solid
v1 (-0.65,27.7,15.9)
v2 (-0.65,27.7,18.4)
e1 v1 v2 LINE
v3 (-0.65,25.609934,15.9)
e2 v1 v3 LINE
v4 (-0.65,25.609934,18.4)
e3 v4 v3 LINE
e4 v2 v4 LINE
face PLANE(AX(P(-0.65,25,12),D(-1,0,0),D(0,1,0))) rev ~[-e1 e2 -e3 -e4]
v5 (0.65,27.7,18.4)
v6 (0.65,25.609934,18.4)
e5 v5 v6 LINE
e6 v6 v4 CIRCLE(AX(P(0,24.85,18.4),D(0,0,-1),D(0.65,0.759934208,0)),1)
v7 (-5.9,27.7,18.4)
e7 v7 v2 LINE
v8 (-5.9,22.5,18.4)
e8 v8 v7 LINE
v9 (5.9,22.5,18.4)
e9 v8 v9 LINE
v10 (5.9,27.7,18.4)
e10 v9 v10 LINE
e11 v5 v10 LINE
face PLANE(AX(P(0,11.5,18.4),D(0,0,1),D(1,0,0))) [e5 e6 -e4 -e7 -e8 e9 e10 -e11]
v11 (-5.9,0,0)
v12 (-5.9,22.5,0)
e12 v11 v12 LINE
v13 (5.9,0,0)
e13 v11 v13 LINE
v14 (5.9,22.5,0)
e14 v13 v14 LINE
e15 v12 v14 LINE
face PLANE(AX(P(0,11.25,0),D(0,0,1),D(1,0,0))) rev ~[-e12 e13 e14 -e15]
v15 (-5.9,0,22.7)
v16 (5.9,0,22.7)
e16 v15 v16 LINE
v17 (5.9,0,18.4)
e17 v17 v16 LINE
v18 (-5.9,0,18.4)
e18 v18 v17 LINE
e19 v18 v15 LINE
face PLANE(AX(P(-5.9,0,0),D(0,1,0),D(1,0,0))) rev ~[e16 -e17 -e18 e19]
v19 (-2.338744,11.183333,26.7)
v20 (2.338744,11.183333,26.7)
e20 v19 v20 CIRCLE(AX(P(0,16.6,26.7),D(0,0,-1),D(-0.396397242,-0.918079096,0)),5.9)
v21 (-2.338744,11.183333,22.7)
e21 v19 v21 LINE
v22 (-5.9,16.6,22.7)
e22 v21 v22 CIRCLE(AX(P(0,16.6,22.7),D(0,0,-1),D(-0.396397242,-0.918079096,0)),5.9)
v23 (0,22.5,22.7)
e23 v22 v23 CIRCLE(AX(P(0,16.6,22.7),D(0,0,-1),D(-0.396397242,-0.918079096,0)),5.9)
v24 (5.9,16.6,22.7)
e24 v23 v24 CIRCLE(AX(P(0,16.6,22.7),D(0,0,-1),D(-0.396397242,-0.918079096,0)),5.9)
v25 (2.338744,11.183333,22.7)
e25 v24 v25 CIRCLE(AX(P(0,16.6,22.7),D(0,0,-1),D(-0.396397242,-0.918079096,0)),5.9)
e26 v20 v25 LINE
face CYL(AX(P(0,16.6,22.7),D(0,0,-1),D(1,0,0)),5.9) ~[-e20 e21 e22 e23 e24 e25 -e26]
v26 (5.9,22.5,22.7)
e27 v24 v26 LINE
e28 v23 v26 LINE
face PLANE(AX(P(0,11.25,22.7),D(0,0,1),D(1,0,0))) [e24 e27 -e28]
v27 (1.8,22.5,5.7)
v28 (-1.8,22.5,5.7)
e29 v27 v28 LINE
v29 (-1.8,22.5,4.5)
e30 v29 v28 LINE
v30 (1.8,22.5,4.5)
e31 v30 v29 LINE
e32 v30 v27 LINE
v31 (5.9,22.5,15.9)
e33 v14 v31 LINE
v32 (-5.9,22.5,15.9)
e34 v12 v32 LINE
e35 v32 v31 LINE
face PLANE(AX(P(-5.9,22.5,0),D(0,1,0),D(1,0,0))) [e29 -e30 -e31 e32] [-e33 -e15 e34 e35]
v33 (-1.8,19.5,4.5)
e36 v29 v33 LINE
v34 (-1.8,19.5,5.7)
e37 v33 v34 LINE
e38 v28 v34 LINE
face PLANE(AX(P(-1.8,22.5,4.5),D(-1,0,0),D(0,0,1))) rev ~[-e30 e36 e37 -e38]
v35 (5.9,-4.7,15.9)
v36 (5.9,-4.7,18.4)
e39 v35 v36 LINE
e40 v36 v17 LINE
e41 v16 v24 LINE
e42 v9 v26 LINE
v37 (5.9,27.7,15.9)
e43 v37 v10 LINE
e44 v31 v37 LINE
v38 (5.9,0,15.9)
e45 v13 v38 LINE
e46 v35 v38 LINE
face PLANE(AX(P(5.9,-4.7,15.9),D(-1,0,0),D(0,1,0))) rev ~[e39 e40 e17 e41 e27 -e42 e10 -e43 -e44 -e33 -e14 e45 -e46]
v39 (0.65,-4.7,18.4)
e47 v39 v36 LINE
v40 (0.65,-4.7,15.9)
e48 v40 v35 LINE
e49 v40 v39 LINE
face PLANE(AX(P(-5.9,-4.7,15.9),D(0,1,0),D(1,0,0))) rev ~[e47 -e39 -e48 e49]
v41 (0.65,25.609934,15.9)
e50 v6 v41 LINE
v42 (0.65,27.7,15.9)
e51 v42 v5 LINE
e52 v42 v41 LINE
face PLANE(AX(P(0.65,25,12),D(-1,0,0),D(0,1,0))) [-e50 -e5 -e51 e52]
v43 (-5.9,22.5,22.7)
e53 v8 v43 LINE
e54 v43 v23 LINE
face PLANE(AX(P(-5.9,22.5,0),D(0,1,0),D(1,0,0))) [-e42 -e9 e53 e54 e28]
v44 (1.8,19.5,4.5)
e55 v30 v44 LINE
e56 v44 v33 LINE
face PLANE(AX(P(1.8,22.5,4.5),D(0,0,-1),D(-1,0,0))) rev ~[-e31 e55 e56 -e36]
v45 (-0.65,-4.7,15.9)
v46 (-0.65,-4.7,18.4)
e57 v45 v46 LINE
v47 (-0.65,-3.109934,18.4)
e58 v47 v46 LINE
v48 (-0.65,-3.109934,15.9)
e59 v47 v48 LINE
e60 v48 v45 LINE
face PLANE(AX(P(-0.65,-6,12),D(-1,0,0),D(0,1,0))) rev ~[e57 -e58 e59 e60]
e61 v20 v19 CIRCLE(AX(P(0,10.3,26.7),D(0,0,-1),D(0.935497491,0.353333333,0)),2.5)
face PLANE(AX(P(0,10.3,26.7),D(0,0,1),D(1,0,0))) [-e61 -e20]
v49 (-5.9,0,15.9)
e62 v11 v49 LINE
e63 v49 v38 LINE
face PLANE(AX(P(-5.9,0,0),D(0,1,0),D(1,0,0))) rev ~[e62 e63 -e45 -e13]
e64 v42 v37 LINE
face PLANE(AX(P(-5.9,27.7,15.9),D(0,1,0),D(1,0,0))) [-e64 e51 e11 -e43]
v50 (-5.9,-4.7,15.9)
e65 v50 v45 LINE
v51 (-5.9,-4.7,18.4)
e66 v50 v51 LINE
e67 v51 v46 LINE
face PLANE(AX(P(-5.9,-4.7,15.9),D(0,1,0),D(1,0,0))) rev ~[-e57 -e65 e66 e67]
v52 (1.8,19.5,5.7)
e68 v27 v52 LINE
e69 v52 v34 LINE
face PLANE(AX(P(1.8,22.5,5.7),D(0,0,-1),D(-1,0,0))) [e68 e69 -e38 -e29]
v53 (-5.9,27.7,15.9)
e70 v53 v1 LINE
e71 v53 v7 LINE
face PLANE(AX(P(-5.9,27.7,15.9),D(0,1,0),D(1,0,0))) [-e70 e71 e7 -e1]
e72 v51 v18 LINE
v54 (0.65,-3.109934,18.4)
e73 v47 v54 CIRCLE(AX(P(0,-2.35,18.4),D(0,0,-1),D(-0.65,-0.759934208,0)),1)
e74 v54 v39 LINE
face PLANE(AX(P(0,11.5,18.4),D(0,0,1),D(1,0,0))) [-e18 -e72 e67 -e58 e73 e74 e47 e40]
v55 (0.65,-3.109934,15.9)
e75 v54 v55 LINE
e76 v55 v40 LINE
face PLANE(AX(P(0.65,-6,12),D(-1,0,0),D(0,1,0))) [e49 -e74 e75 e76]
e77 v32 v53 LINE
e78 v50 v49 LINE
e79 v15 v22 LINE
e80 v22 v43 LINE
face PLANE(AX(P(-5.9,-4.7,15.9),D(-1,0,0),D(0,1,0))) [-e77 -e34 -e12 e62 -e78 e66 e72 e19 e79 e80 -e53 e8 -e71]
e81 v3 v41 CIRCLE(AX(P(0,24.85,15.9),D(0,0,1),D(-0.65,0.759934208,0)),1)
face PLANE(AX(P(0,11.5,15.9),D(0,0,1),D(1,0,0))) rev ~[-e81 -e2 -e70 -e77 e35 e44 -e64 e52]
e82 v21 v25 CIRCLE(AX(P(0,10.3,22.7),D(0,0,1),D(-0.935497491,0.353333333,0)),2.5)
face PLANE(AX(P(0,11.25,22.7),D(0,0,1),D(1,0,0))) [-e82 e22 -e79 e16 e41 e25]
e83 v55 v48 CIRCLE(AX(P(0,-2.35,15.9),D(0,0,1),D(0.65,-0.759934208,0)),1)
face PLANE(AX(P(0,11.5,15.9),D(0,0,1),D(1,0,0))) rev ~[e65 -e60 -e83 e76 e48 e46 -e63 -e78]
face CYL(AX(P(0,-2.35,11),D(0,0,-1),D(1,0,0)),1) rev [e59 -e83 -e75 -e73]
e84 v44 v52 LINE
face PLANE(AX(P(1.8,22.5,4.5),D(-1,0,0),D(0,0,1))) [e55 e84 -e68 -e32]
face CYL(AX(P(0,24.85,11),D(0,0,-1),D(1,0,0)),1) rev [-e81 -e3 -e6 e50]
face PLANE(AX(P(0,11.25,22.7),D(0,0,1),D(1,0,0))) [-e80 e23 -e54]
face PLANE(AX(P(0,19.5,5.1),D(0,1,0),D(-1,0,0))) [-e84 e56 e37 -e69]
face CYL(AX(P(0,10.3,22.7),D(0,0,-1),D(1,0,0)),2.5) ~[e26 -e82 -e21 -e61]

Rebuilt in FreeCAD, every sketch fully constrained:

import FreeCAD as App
import Part
import Sketcher
from FreeCAD import Vector
Q = App.Units.Quantity

doc = App.newDocument("Part")
body = doc.addObject("PartDesign::Body", "Body")

sketch1 = doc.addObject("Sketcher::SketchObject", "Sketch")
body.addObject(sketch1)
sketch1.AttachmentSupport = (doc.XY_Plane, [""])
sketch1.MapMode = "FlatFace"
sketch1.AttachmentOffset = App.Placement(Vector(0, 0, 12), App.Rotation())
sketch1.addGeometry(Part.LineSegment(Vector(5.2, 28.3, 0), Vector(5.2, 25, 0)), False)
sketch1.addGeometry(Part.LineSegment(Vector(5.2, 25, 0), Vector(6.5, 25, 0)), False)
sketch1.addGeometry(Part.LineSegment(Vector(6.5, 25, 0), Vector(6.5, 28.3, 0)), False)
sketch1.addGeometry(Part.LineSegment(Vector(6.5, 28.3, 0), Vector(5.2, 28.3, 0)), False)
sketch1.addConstraint(Sketcher.Constraint("Coincident", 0, 2, 1, 1))
sketch1.addConstraint(Sketcher.Constraint("Coincident", 1, 2, 2, 1))
sketch1.addConstraint(Sketcher.Constraint("Coincident", 2, 2, 3, 1))
sketch1.addConstraint(Sketcher.Constraint("Coincident", 3, 2, 0, 1))
sketch1.addConstraint(Sketcher.Constraint("Vertical", 0))
sketch1.addConstraint(Sketcher.Constraint("Horizontal", 1))
sketch1.addConstraint(Sketcher.Constraint("Vertical", 2))
sketch1.addConstraint(Sketcher.Constraint("Horizontal", 3))
sketch1.addConstraint(Sketcher.Constraint("DistanceX", 1, 1, 1, 2, Q("1.3 mm")))
sketch1.addConstraint(Sketcher.Constraint("DistanceY", 0, 2, 0, 1, Q("3.3 mm")))
sketch1.addConstraint(Sketcher.Constraint("DistanceY", -1, 1, 0, 2, Q("25 mm")))
sketch1.addConstraint(Sketcher.Constraint("DistanceX", -1, 1, 0, 2, Q("5.25 mm")))
pad1 = doc.addObject("PartDesign::Pad", "Pad")
body.addObject(pad1)
pad1.Profile = sketch1
pad1.Length = 10
body2 = doc.addObject("PartDesign::Body", "Body001")
body2.AllowCompound = True

sketch2 = doc.addObject("Sketcher::SketchObject", "Sketch001")
body2.addObject(sketch2)
sketch2.AttachmentSupport = (doc.getObject("XY_Plane001"), [""])
sketch2.MapMode = "FlatFace"
sketch2.AttachmentOffset = App.Placement(Vector(0, 0, 12), App.Rotation())
sketch2.addGeometry(Part.LineSegment(Vector(5.2, -2.7, 0), Vector(5.2, -6, 0)), False)
sketch2.addGeometry(Part.LineSegment(Vector(5.2, -6, 0), Vector(6.5, -6, 0)), False)
sketch2.addGeometry(Part.LineSegment(Vector(6.5, -6, 0), Vector(6.5, -2.7, 0)), False)
sketch2.addGeometry(Part.LineSegment(Vector(6.5, -2.7, 0), Vector(5.2, -2.7, 0)), False)
sketch2.addConstraint(Sketcher.Constraint("Coincident", 0, 2, 1, 1))
sketch2.addConstraint(Sketcher.Constraint("Coincident", 1, 2, 2, 1))
sketch2.addConstraint(Sketcher.Constraint("Coincident", 2, 2, 3, 1))
sketch2.addConstraint(Sketcher.Constraint("Coincident", 3, 2, 0, 1))
sketch2.addConstraint(Sketcher.Constraint("Vertical", 0))
sketch2.addConstraint(Sketcher.Constraint("Horizontal", 1))
sketch2.addConstraint(Sketcher.Constraint("Vertical", 2))
sketch2.addConstraint(Sketcher.Constraint("Horizontal", 3))
sketch2.addConstraint(Sketcher.Constraint("DistanceX", 1, 1, 1, 2, Q("1.3 mm")))
sketch2.addConstraint(Sketcher.Constraint("DistanceY", 0, 2, 0, 1, Q("3.3 mm")))
sketch2.addConstraint(Sketcher.Constraint("DistanceY", 0, 2, -1, 1, Q("6 mm")))
sketch2.addConstraint(Sketcher.Constraint("DistanceX", -1, 1, 0, 2, Q("5.25 mm")))
pad2 = doc.addObject("PartDesign::Pad", "Pad001")
body2.addObject(pad2)
pad2.Profile = sketch2
pad2.Length = 10
doc.recompute()

boolean = doc.addObject("PartDesign::Boolean", "Boolean")
body2.addObject(boolean)
boolean.Type = "Fuse"
boolean.addObjects([body])
body3 = doc.addObject("PartDesign::Body", "Body002")

sketch3 = doc.addObject("Sketcher::SketchObject", "Sketch002")
body3.addObject(sketch3)
sketch3.AttachmentSupport = (doc.getObject("XY_Plane002"), [""])
sketch3.MapMode = "FlatFace"
sketch3.AttachmentOffset = App.Placement(Vector(0, 0, 11), App.Rotation())
sketch3.addGeometry(Part.Circle(Vector(5.9, 24.9, 0), Vector(0, 0, 1), 1), False)
sketch3.addConstraint(Sketcher.Constraint("Diameter", 0, Q("2 mm")))
sketch3.addConstraint(Sketcher.Constraint("DistanceX", -1, 1, 0, 3, Q("5.9 mm")))
sketch3.addConstraint(Sketcher.Constraint("DistanceY", -1, 1, 0, 3, Q("24.85 mm")))
pad3 = doc.addObject("PartDesign::Pad", "Pad002")
body3.addObject(pad3)
pad3.Profile = sketch3
pad3.Length = 10
body4 = doc.addObject("PartDesign::Body", "Body003")
body4.AllowCompound = True

sketch4 = doc.addObject("Sketcher::SketchObject", "Sketch003")
body4.addObject(sketch4)
sketch4.AttachmentSupport = (doc.getObject("XY_Plane003"), [""])
sketch4.MapMode = "FlatFace"
sketch4.AttachmentOffset = App.Placement(Vector(0, 0, 11), App.Rotation())
sketch4.addGeometry(Part.Circle(Vector(5.9, -2.4, 0), Vector(0, 0, 1), 1), False)
sketch4.addConstraint(Sketcher.Constraint("Diameter", 0, Q("2 mm")))
sketch4.addConstraint(Sketcher.Constraint("DistanceX", -1, 1, 0, 3, Q("5.9 mm")))
sketch4.addConstraint(Sketcher.Constraint("DistanceY", 0, 3, -1, 1, Q("2.35 mm")))
pad4 = doc.addObject("PartDesign::Pad", "Pad003")
body4.addObject(pad4)
pad4.Profile = sketch4
pad4.Length = 10
doc.recompute()

boolean2 = doc.addObject("PartDesign::Boolean", "Boolean001")
body4.addObject(boolean2)
boolean2.Type = "Fuse"
boolean2.addObjects([body3])
doc.recompute()

boolean3 = doc.addObject("PartDesign::Boolean", "Boolean002")
body4.addObject(boolean3)
boolean3.Type = "Fuse"
boolean3.addObjects([body2])
body5 = doc.addObject("PartDesign::Body", "Body004")

sketch5 = doc.addObject("Sketcher::SketchObject", "Sketch004")
body5.addObject(sketch5)
sketch5.AttachmentSupport = (doc.getObject("XY_Plane004"), [""])
sketch5.MapMode = "FlatFace"
sketch5.AttachmentOffset = App.Placement(Vector(0, 0, 22.7), App.Rotation())
sketch5.addGeometry(Part.Circle(Vector(5.9, 10.3, 0), Vector(0, 0, 1), 2.5), False)
sketch5.addConstraint(Sketcher.Constraint("Diameter", 0, Q("5 mm")))
sketch5.addConstraint(Sketcher.Constraint("DistanceX", -1, 1, 0, 3, Q("5.9 mm")))
sketch5.addConstraint(Sketcher.Constraint("DistanceY", -1, 1, 0, 3, Q("10.3 mm")))
pad5 = doc.addObject("PartDesign::Pad", "Pad004")
body5.addObject(pad5)
pad5.Profile = sketch5
pad5.Length = 4
body6 = doc.addObject("PartDesign::Body", "Body005")

sketch6 = doc.addObject("Sketcher::SketchObject", "Sketch005")
body6.addObject(sketch6)
sketch6.AttachmentSupport = (doc.getObject("XY_Plane005"), [""])
sketch6.MapMode = "FlatFace"
sketch6.AttachmentOffset = App.Placement(Vector(0, 0, 22.7), App.Rotation())
sketch6.addGeometry(Part.Circle(Vector(6, 17, 0), Vector(0, 0, 1), 6), False)
sketch6.addConstraint(Sketcher.Constraint("Diameter", 0, Q("11.8 mm")))
sketch6.addConstraint(Sketcher.Constraint("DistanceX", -1, 1, 0, 3, Q("5.9 mm")))
sketch6.addConstraint(Sketcher.Constraint("DistanceY", -1, 1, 0, 3, Q("16.6 mm")))
pad6 = doc.addObject("PartDesign::Pad", "Pad005")
body6.addObject(pad6)
pad6.Profile = sketch6
pad6.Length = 4
doc.recompute()

boolean4 = doc.addObject("PartDesign::Boolean", "Boolean003")
body6.addObject(boolean4)
boolean4.Type = "Fuse"
boolean4.addObjects([body5])
body7 = doc.addObject("PartDesign::Body", "Body006")

sketch7 = doc.addObject("Sketcher::SketchObject", "Sketch006")
body7.addObject(sketch7)
sketch7.AttachmentSupport = (doc.getObject("XY_Plane006"), [""])
sketch7.MapMode = "FlatFace"
sketch7.AttachmentOffset = App.Placement(Vector(0, 0, 15.9), App.Rotation())
sketch7.addGeometry(Part.LineSegment(Vector(0, 28, 0), Vector(0, -5, 0)), False)
sketch7.addGeometry(Part.LineSegment(Vector(0, -5, 0), Vector(12, -5, 0)), False)
sketch7.addGeometry(Part.LineSegment(Vector(12, -5, 0), Vector(12, 28, 0)), False)
sketch7.addGeometry(Part.LineSegment(Vector(12, 28, 0), Vector(0, 28, 0)), False)
sketch7.addConstraint(Sketcher.Constraint("Coincident", 0, 2, 1, 1))
sketch7.addConstraint(Sketcher.Constraint("Coincident", 1, 2, 2, 1))
sketch7.addConstraint(Sketcher.Constraint("Coincident", 2, 2, 3, 1))
sketch7.addConstraint(Sketcher.Constraint("Coincident", 3, 2, 0, 1))
sketch7.addConstraint(Sketcher.Constraint("Vertical", 0))
sketch7.addConstraint(Sketcher.Constraint("Horizontal", 1))
sketch7.addConstraint(Sketcher.Constraint("Vertical", 2))
sketch7.addConstraint(Sketcher.Constraint("Horizontal", 3))
sketch7.addConstraint(Sketcher.Constraint("PointOnObject", 0, 2, -2))
sketch7.addConstraint(Sketcher.Constraint("DistanceX", 1, 1, 1, 2, Q("11.8 mm")))
sketch7.addConstraint(Sketcher.Constraint("DistanceY", 0, 2, 0, 1, Q("32.4 mm")))
sketch7.addConstraint(Sketcher.Constraint("DistanceY", 0, 2, -1, 1, Q("4.7 mm")))
pad7 = doc.addObject("PartDesign::Pad", "Pad006")
body7.addObject(pad7)
pad7.Profile = sketch7
pad7.Length = 2.5
body8 = doc.addObject("PartDesign::Body", "Body007")

sketch8 = doc.addObject("Sketcher::SketchObject", "Sketch007")
body8.addObject(sketch8)
sketch8.AttachmentSupport = (doc.getObject("XY_Plane007"), [""])
sketch8.MapMode = "FlatFace"
sketch8.addGeometry(Part.LineSegment(Vector(0, 22, 0), Vector(0, 0, 0)), False)
sketch8.addGeometry(Part.LineSegment(Vector(0, 0, 0), Vector(12, 0, 0)), False)
sketch8.addGeometry(Part.LineSegment(Vector(12, 0, 0), Vector(12, 22, 0)), False)
sketch8.addGeometry(Part.LineSegment(Vector(12, 22, 0), Vector(0, 22, 0)), False)
sketch8.addConstraint(Sketcher.Constraint("Coincident", 0, 2, 1, 1))
sketch8.addConstraint(Sketcher.Constraint("Coincident", 1, 2, 2, 1))
sketch8.addConstraint(Sketcher.Constraint("Coincident", 2, 2, 3, 1))
sketch8.addConstraint(Sketcher.Constraint("Coincident", 3, 2, 0, 1))
sketch8.addConstraint(Sketcher.Constraint("Vertical", 0))
sketch8.addConstraint(Sketcher.Constraint("Horizontal", 1))
sketch8.addConstraint(Sketcher.Constraint("Vertical", 2))
sketch8.addConstraint(Sketcher.Constraint("Horizontal", 3))
sketch8.addConstraint(Sketcher.Constraint("Coincident", 0, 2, -1, 1))
sketch8.addConstraint(Sketcher.Constraint("DistanceX", 1, 1, 1, 2, Q("11.8 mm")))
sketch8.addConstraint(Sketcher.Constraint("DistanceY", 0, 2, 0, 1, Q("22.5 mm")))
pad8 = doc.addObject("PartDesign::Pad", "Pad007")
body8.addObject(pad8)
pad8.Profile = sketch8
pad8.Length = 22.7
doc.recompute()

boolean5 = doc.addObject("PartDesign::Boolean", "Boolean004")
body8.addObject(boolean5)
boolean5.Type = "Fuse"
boolean5.addObjects([body7])
doc.recompute()

boolean6 = doc.addObject("PartDesign::Boolean", "Boolean005")
body8.addObject(boolean6)
boolean6.Type = "Fuse"
boolean6.addObjects([body6])
doc.recompute()

boolean7 = doc.addObject("PartDesign::Boolean", "Boolean006")
body8.addObject(boolean7)
boolean7.Type = "Cut"
boolean7.addObjects([body4])
body9 = doc.addObject("PartDesign::Body", "Body008")
doc.recompute()

body8.Placement = App.Placement(Vector(-5.9, 0, 0), App.Rotation(Vector(0, 0, 1), 0))
boolean8 = doc.addObject("PartDesign::Boolean", "Boolean007")
body9.addObject(boolean8)
boolean8.Type = "Fuse"
boolean8.addObjects([body8])

sketch9 = doc.addObject("Sketcher::SketchObject", "Sketch008")
body9.addObject(sketch9)
sketch9.AttachmentSupport = (doc.getObject("XZ_Plane008"), [""])
sketch9.MapMode = "FlatFace"
sketch9.AttachmentOffset = App.Placement(Vector(0, 0, -22.5), App.Rotation())
sketch9.addGeometry(Part.LineSegment(Vector(1.8, 5.7, 0), Vector(1.8, 4.5, 0)), False)
sketch9.addGeometry(Part.LineSegment(Vector(1.8, 4.5, 0), Vector(-1.8, 4.5, 0)), False)
sketch9.addGeometry(Part.LineSegment(Vector(-1.8, 4.5, 0), Vector(-1.8, 5.7, 0)), False)
sketch9.addGeometry(Part.LineSegment(Vector(-1.8, 5.7, 0), Vector(1.8, 5.7, 0)), False)
sketch9.addConstraint(Sketcher.Constraint("Coincident", 0, 2, 1, 1))
sketch9.addConstraint(Sketcher.Constraint("Coincident", 1, 2, 2, 1))
sketch9.addConstraint(Sketcher.Constraint("Coincident", 2, 2, 3, 1))
sketch9.addConstraint(Sketcher.Constraint("Coincident", 3, 2, 0, 1))
sketch9.addConstraint(Sketcher.Constraint("Vertical", 0))
sketch9.addConstraint(Sketcher.Constraint("Horizontal", 1))
sketch9.addConstraint(Sketcher.Constraint("Vertical", 2))
sketch9.addConstraint(Sketcher.Constraint("Horizontal", 3))
sketch9.addConstraint(Sketcher.Constraint("DistanceX", 1, 2, 1, 1, Q("3.6 mm")))
sketch9.addConstraint(Sketcher.Constraint("DistanceY", 0, 2, 0, 1, Q("1.2 mm")))
sketch9.addConstraint(Sketcher.Constraint("DistanceX", -1, 1, 0, 2, Q("1.8 mm")))
sketch9.addConstraint(Sketcher.Constraint("DistanceY", -1, 1, 0, 2, Q("4.5 mm")))
pocket1 = doc.addObject("PartDesign::Pocket", "Pocket")
body9.addObject(pocket1)
pocket1.Profile = sketch9
pocket1.Length = 3
pocket1.Reversed = True

doc.recompute()
